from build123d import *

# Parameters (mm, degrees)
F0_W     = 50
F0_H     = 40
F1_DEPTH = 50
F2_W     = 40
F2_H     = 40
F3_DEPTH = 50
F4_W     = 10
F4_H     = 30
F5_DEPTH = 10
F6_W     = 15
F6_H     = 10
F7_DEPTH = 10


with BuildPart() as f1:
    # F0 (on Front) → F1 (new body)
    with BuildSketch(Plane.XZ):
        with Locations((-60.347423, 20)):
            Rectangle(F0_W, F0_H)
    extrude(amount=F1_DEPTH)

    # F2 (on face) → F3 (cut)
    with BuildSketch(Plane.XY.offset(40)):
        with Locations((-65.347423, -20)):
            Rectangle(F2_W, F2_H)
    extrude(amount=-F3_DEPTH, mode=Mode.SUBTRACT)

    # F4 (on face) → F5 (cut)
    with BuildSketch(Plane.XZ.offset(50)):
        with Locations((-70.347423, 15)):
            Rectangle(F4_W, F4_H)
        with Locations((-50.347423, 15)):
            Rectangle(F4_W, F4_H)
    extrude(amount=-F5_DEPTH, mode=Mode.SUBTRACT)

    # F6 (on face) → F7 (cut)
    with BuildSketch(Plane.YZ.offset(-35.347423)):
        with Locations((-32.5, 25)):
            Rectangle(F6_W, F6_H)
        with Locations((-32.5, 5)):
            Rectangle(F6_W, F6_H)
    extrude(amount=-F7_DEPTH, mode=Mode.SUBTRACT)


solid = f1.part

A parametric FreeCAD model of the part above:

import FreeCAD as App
import Part
import Sketcher
from FreeCAD import Vector

doc = App.newDocument("Part")
params = doc.addObject("Spreadsheet::Sheet", "Params")
for row, (alias, value) in enumerate([
    ("sketch1_width", "50 mm"),
    ("sketch1_height", "40 mm"),
    ("pad1_length", "50 mm"),
    ("sketch2_width", "40 mm"),
    ("pocket1_length", "50 mm"),
    ("sketch3_width", "10 mm"),
    ("sketch3_height", "30 mm"),
    ("pocket2_length", "10 mm"),
    ("sketch4_width", "15 mm"),
    ("sketch4_height", "10 mm"),
    ("pocket3_length", "10 mm"),
], start=1):
    params.set(f"A{row}", alias)
    params.set(f"B{row}", "=" + value)
    params.setAlias(f"B{row}", alias)

body = doc.addObject("PartDesign::Body", "Body")

sketch1 = doc.addObject("Sketcher::SketchObject", "Sketch")
body.addObject(sketch1)
sketch1.AttachmentSupport = (doc.XZ_Plane, [""])
sketch1.MapMode = "FlatFace"
sketch1.addGeometry([
    Part.LineSegment(Vector(-85, 40, 0), Vector(-85, 0, 0)),
    Part.LineSegment(Vector(-85, 0, 0), Vector(-35, 0, 0)),
    Part.LineSegment(Vector(-35, 0, 0), Vector(-35, 40, 0)),
    Part.LineSegment(Vector(-35, 40, 0), Vector(-85, 40, 0)),
], False)
sketch1.addConstraint([
    Sketcher.Constraint("Coincident", 0, 2, 1, 1),
    Sketcher.Constraint("Coincident", 1, 2, 2, 1),
    Sketcher.Constraint("Coincident", 2, 2, 3, 1),
    Sketcher.Constraint("Coincident", 3, 2, 0, 1),
    Sketcher.Constraint("Vertical", 0),
    Sketcher.Constraint("Horizontal", 1),
    Sketcher.Constraint("Vertical", 2),
    Sketcher.Constraint("Horizontal", 3),
    Sketcher.Constraint("PointOnObject", 0, 2, -1),
    Sketcher.Constraint("DistanceX", 1, 1, 1, 2, 50.0),
    Sketcher.Constraint("DistanceY", 0, 2, 0, 1, 40.0),
    Sketcher.Constraint("DistanceX", 0, 2, -1, 1, 85.347423),
])
sketch1.setExpression("Constraints[9]", "Params.sketch1_width")
sketch1.setExpression("Constraints[10]", "Params.sketch1_height")
pad1 = doc.addObject("PartDesign::Pad", "Pad")
body.addObject(pad1)
pad1.Profile = sketch1
pad1.setExpression("Length", "Params.pad1_length")

sketch2 = doc.addObject("Sketcher::SketchObject", "Sketch001")
body.addObject(sketch2)
sketch2.AttachmentSupport = (doc.XY_Plane, [""])
sketch2.MapMode = "FlatFace"
sketch2.AttachmentOffset = App.Placement(Vector(0, 0, 40), App.Rotation())
sketch2.addGeometry([
    Part.LineSegment(Vector(-85, 0, 0), Vector(-85, -40, 0)),
    Part.LineSegment(Vector(-85, -40, 0), Vector(-45, -40, 0)),
    Part.LineSegment(Vector(-45, -40, 0), Vector(-45, 0, 0)),
    Part.LineSegment(Vector(-45, 0, 0), Vector(-85, 0, 0)),
], False)
sketch2.addConstraint([
    Sketcher.Constraint("Coincident", 0, 2, 1, 1),
    Sketcher.Constraint("Coincident", 1, 2, 2, 1),
    Sketcher.Constraint("Coincident", 2, 2, 3, 1),
    Sketcher.Constraint("Coincident", 3, 2, 0, 1),
    Sketcher.Constraint("Vertical", 0),
    Sketcher.Constraint("Horizontal", 1),
    Sketcher.Constraint("Vertical", 2),
    Sketcher.Constraint("Horizontal", 3),
    Sketcher.Constraint("PointOnObject", 2, 2, -1),
    Sketcher.Constraint("Equal", 3, 0),
    Sketcher.Constraint("DistanceX", 1, 1, 1, 2, 40.0),
    Sketcher.Constraint("DistanceX", 0, 2, -1, 1, 85.347423),
])
sketch2.setExpression("Constraints[10]", "Params.sketch2_width")
pocket1 = doc.addObject("PartDesign::Pocket", "Pocket")
body.addObject(pocket1)
pocket1.Profile = sketch2
pocket1.setExpression("Length", "Params.pocket1_length")

sketch3 = doc.addObject("Sketcher::SketchObject", "Sketch002")
body.addObject(sketch3)
sketch3.AttachmentSupport = (doc.XZ_Plane, [""])
sketch3.MapMode = "FlatFace"
sketch3.AttachmentOffset = App.Placement(Vector(0, 0, 50), App.Rotation())
sketch3.addGeometry([
    Part.LineSegment(Vector(-75, 30, 0), Vector(-75, 0, 0)),
    Part.LineSegment(Vector(-75, 0, 0), Vector(-65, 0, 0)),
    Part.LineSegment(Vector(-65, 0, 0), Vector(-65, 30, 0)),
    Part.LineSegment(Vector(-65, 30, 0), Vector(-75, 30, 0)),
    Part.LineSegment(Vector(-55, 30, 0), Vector(-55, 0, 0)),
    Part.LineSegment(Vector(-55, 0, 0), Vector(-45, 0, 0)),
    Part.LineSegment(Vector(-45, 0, 0), Vector(-45, 30, 0)),
    Part.LineSegment(Vector(-45, 30, 0), Vector(-55, 30, 0)),
], False)
sketch3.addConstraint([
    Sketcher.Constraint("Coincident", 0, 2, 1, 1),
    Sketcher.Constraint("Coincident", 1, 2, 2, 1),
    Sketcher.Constraint("Coincident", 2, 2, 3, 1),
    Sketcher.Constraint("Coincident", 3, 2, 0, 1),
    Sketcher.Constraint("Coincident", 4, 2, 5, 1),
    Sketcher.Constraint("Coincident", 5, 2, 6, 1),
    Sketcher.Constraint("Coincident", 6, 2, 7, 1),
    Sketcher.Constraint("Coincident", 7, 2, 4, 1),
    Sketcher.Constraint("Vertical", 0),
    Sketcher.Constraint("Horizontal", 1),
    Sketcher.Constraint("Vertical", 2),
    Sketcher.Constraint("Horizontal", 3),
    Sketcher.Constraint("Vertical", 4),
    Sketcher.Constraint("Horizontal", 5),
    Sketcher.Constraint("Vertical", 6),
    Sketcher.Constraint("Horizontal", 7),
    Sketcher.Constraint("PointOnObject", 0, 2, -1),
    Sketcher.Constraint("PointOnObject", 4, 2, -1),
    Sketcher.Constraint("Horizontal", 3, 2, 6, 2),
    Sketcher.Constraint("Equal", 3, 5),
    Sketcher.Constraint("DistanceX", 1, 1, 1, 2, 10.0),
    Sketcher.Constraint("DistanceY", 0, 2, 0, 1, 30.0),
    Sketcher.Constraint("DistanceX", 1, 2, 4, 2, 10.0),
    Sketcher.Constraint("DistanceX", 0, 2, -1, 1, 75.347423),
])
sketch3.setExpression("Constraints[20]", "Params.sketch3_width")
sketch3.setExpression("Constraints[21]", "Params.sketch3_height")
pocket2 = doc.addObject("PartDesign::Pocket", "Pocket001")
body.addObject(pocket2)
pocket2.Profile = sketch3
pocket2.setExpression("Length", "Params.pocket2_length")

sketch4 = doc.addObject("Sketcher::SketchObject", "Sketch003")
body.addObject(sketch4)
sketch4.AttachmentSupport = (doc.YZ_Plane, [""])
sketch4.MapMode = "FlatFace"
sketch4.AttachmentOffset = App.Placement(Vector(0, 0, -35.347423), App.Rotation())
sketch4.addGeometry([
    Part.LineSegment(Vector(-40, 30, 0), Vector(-40, 20, 0)),
    Part.LineSegment(Vector(-40, 20, 0), Vector(-25, 20, 0)),
    Part.LineSegment(Vector(-25, 20, 0), Vector(-25, 30, 0)),
    Part.LineSegment(Vector(-25, 30, 0), Vector(-40, 30, 0)),
    Part.LineSegment(Vector(-40, 10, 0), Vector(-40, 0, 0)),
    Part.LineSegment(Vector(-40, 0, 0), Vector(-25, 0, 0)),
    Part.LineSegment(Vector(-25, 0, 0), Vector(-25, 10, 0)),
    Part.LineSegment(Vector(-25, 10, 0), Vector(-40, 10, 0)),
], False)
sketch4.addConstraint([
    Sketcher.Constraint("Coincident", 0, 2, 1, 1),
    Sketcher.Constraint("Coincident", 1, 2, 2, 1),
    Sketcher.Constraint("Coincident", 2, 2, 3, 1),
    Sketcher.Constraint("Coincident", 3, 2, 0, 1),
    Sketcher.Constraint("Coincident", 4, 2, 5, 1),
    Sketcher.Constraint("Coincident", 5, 2, 6, 1),
    Sketcher.Constraint("Coincident", 6, 2, 7, 1),
    Sketcher.Constraint("Coincident", 7, 2, 4, 1),
    Sketcher.Constraint("Vertical", 0),
    Sketcher.Constraint("Horizontal", 1),
    Sketcher.Constraint("Vertical", 2),
    Sketcher.Constraint("Horizontal", 3),
    Sketcher.Constraint("Vertical", 4),
    Sketcher.Constraint("Horizontal", 5),
    Sketcher.Constraint("Vertical", 6),
    Sketcher.Constraint("Horizontal", 7),
    Sketcher.Constraint("PointOnObject", 4, 2, -1),
    Sketcher.Constraint("Vertical", 3, 2, 4, 2),
    Sketcher.Constraint("Vertical", 2, 2, 5, 2),
    Sketcher.Constraint("Equal", 2, 4),
    Sketcher.Constraint("DistanceX", 1, 1, 1, 2, 15.0),
    Sketcher.Constraint("DistanceY", 0, 2, 0, 1, 10.0),
    Sketcher.Constraint("DistanceX", 0, 2, -1, 1, 40.0),
    Sketcher.Constraint("DistanceY", -1, 1, 0, 2, 20.0),
])
sketch4.setExpression("Constraints[20]", "Params.sketch4_width")
sketch4.setExpression("Constraints[21]", "Params.sketch4_height")
pocket3 = doc.addObject("PartDesign::Pocket", "Pocket002")
body.addObject(pocket3)
pocket3.Profile = sketch4
pocket3.setExpression("Length", "Params.pocket3_length")

doc.recompute()
